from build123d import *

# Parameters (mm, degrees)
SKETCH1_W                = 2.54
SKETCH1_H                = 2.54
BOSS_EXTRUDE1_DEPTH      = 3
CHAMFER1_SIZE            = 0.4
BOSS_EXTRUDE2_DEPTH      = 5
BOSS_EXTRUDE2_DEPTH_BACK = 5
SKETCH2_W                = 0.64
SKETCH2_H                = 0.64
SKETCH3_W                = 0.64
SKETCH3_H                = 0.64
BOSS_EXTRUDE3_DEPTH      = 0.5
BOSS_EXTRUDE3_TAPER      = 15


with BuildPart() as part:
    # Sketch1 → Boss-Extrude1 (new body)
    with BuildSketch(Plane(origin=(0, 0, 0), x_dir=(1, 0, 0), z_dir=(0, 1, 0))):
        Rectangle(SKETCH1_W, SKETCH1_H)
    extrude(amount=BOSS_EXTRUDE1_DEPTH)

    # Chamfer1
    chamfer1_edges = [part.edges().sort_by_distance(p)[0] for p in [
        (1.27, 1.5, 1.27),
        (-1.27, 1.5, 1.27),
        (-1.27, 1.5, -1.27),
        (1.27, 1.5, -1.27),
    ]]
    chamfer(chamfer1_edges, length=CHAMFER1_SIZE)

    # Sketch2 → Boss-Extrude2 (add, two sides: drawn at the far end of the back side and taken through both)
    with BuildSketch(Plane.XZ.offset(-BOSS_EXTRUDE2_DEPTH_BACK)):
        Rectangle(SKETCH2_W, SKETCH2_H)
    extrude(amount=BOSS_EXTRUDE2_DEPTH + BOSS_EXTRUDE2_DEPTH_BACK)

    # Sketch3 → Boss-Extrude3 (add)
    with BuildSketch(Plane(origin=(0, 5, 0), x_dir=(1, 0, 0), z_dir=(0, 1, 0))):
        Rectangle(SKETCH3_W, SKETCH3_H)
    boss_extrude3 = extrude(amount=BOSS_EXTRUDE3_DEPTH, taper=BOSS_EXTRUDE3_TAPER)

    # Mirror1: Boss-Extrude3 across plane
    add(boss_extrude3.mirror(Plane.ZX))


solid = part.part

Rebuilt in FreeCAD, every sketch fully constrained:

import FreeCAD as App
import Part
import Sketcher


def edges_at(feature, points):
    """Names of the edges that pass closest to the given points."""
    edges = feature.Shape.Edges
    near = lambda p: min(range(len(edges)), key=lambda i: edges[i].distToShape(Part.Vertex(*p))[0])
    return sorted({f"Edge{near(p) + 1}" for p in points})


def add_polygon(sketch, points):
    """Adds a closed chain of lines whose ends are joined by coincident constraints."""
    first, n = sketch.GeometryCount, len(points)
    for a, b in zip(points, points[1:] + points[:1]):
        sketch.addGeometry(Part.LineSegment(App.Vector(*a, 0), App.Vector(*b, 0)), False)
    for i in range(n):
        sketch.addConstraint(Sketcher.Constraint("Coincident", first + i, 2, first + (i + 1) % n, 1))

doc = App.newDocument("Part")
body = doc.addObject("PartDesign::Body", "Body")

# Sketch on XZ plane
sketch1 = body.newObject("Sketcher::SketchObject", "Sketch")
sketch1.AttachmentSupport = (doc.getObject("XZ_Plane"), [""])
sketch1.MapMode = "FlatFace"
add_polygon(sketch1, [(-1.3, -1.3), (-1.3, 1.3), (1.3, 1.3), (1.3, -1.3)])  # lines 0-3
sketch1.addConstraint(Sketcher.Constraint("Vertical", 0))
sketch1.addConstraint(Sketcher.Constraint("Horizontal", 1))
sketch1.addConstraint(Sketcher.Constraint("Vertical", 2))
sketch1.addConstraint(Sketcher.Constraint("Horizontal", 3))
sketch1.addConstraint(Sketcher.Constraint("Symmetric", 0, 2, 2, 2, -1, 1))
sketch1.addConstraint(Sketcher.Constraint("Equal", 3, 0))
sketch1.addConstraint(Sketcher.Constraint("DistanceX", 1, 1, 1, 2, 2.54))
pad1 = body.newObject("PartDesign::Pad", "Pad")
pad1.Profile = sketch1
pad1.Length = 3
pad1.Reversed = True
doc.recompute()

chamfer = body.newObject("PartDesign::Chamfer", "Chamfer")
chamfer.Base = (pad1, edges_at(pad1, [
    (1.27, 1.5, 1.27),
    (-1.27, 1.5, 1.27),
    (-1.27, 1.5, -1.27),
    (1.27, 1.5, -1.27),
]))
chamfer.Size = 0.4

# Sketch on XZ plane
sketch2 = body.newObject("Sketcher::SketchObject", "Sketch001")
sketch2.AttachmentSupport = (doc.getObject("XZ_Plane"), [""])
sketch2.MapMode = "FlatFace"
add_polygon(sketch2, [(-0.3, 0.3), (-0.3, -0.3), (0.3, -0.3), (0.3, 0.3)])  # lines 0-3
sketch2.addConstraint(Sketcher.Constraint("Vertical", 0))
sketch2.addConstraint(Sketcher.Constraint("Horizontal", 1))
sketch2.addConstraint(Sketcher.Constraint("Vertical", 2))
sketch2.addConstraint(Sketcher.Constraint("Horizontal", 3))
sketch2.addConstraint(Sketcher.Constraint("Symmetric", 0, 2, 2, 2, -1, 1))
sketch2.addConstraint(Sketcher.Constraint("Equal", 3, 0))
sketch2.addConstraint(Sketcher.Constraint("DistanceX", 1, 1, 1, 2, 0.64))
pad2 = body.newObject("PartDesign::Pad", "Pad001")
pad2.Profile = sketch2
pad2.Type = "TwoLengths"
pad2.Length = 5
pad2.Length2 = 5

# Sketch on XZ plane
sketch3 = body.newObject("Sketcher::SketchObject", "Sketch002")
sketch3.AttachmentSupport = (doc.getObject("XZ_Plane"), [""])
sketch3.MapMode = "FlatFace"
sketch3.AttachmentOffset = App.Placement(App.Vector(0, 0, -5), App.Rotation())
add_polygon(sketch3, [(-0.3, -0.3), (-0.3, 0.3), (0.3, 0.3), (0.3, -0.3)])  # lines 0-3
sketch3.addConstraint(Sketcher.Constraint("Vertical", 0))
sketch3.addConstraint(Sketcher.Constraint("Horizontal", 1))
sketch3.addConstraint(Sketcher.Constraint("Vertical", 2))
sketch3.addConstraint(Sketcher.Constraint("Horizontal", 3))
sketch3.addConstraint(Sketcher.Constraint("Symmetric", 0, 2, 2, 2, -1, 1))
sketch3.addConstraint(Sketcher.Constraint("Equal", 3, 0))
sketch3.addConstraint(Sketcher.Constraint("DistanceX", 1, 1, 1, 2, 0.64))
pad3 = body.newObject("PartDesign::Pad", "Pad002")
pad3.Profile = sketch3
pad3.Length = 0.5
pad3.Reversed = True
pad3.TaperAngle = -15
doc.recompute()

mirrored = body.newObject("PartDesign::Mirrored", "Mirrored")
mirrored.Originals = [pad3]
mirrored.MirrorPlane = (doc.getObject("XZ_Plane"), [""])
body.Tip = mirrored

doc.recompute()
